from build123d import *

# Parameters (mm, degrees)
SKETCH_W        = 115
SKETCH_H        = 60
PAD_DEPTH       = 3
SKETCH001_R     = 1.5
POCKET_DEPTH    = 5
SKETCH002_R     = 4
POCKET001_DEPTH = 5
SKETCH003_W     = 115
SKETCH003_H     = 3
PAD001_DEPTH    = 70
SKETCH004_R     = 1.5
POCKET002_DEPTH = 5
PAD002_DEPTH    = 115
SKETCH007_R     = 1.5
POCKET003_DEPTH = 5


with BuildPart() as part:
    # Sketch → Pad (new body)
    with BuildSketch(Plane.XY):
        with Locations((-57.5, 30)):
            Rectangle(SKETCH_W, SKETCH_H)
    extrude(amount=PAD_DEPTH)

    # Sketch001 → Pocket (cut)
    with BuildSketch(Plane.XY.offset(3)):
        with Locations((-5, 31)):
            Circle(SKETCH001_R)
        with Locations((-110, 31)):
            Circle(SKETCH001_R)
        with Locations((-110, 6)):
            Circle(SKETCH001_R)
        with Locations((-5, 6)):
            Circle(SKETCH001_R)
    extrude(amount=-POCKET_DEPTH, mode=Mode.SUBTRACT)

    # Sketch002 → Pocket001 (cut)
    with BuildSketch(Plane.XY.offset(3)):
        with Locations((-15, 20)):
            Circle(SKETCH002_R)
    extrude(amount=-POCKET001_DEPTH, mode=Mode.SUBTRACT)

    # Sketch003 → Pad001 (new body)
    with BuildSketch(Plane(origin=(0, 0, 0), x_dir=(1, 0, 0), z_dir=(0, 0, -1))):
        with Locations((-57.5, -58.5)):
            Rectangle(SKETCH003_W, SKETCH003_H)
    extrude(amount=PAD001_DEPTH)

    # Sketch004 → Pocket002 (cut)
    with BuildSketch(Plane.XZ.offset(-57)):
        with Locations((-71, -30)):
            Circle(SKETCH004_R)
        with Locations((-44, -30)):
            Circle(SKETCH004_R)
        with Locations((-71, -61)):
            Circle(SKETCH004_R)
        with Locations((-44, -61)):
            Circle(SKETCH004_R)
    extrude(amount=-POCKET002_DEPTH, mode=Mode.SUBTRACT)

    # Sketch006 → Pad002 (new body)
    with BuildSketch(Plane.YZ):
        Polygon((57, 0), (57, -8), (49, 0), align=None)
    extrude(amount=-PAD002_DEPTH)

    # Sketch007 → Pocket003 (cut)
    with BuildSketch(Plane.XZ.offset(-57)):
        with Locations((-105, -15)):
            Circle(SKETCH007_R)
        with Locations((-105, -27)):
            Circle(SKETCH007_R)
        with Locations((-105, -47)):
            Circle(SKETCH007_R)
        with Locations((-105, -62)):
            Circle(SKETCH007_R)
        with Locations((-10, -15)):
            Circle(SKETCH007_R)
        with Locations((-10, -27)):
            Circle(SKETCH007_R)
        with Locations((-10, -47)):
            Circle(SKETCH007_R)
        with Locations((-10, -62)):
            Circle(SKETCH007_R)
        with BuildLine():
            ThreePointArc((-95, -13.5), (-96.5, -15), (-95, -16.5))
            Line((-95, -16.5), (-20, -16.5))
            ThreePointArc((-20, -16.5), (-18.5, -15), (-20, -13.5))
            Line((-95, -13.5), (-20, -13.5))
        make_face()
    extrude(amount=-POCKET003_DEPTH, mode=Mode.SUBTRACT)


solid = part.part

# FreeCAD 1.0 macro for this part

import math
import FreeCAD as App
import Part
import Sketcher

V = App.Vector
Q = App.Units.Quantity

doc = App.newDocument("Part")
params = doc.addObject("Spreadsheet::Sheet", "Params")
for row, (alias, value) in enumerate([
    ("sketch1_width", "115 mm"),
    ("sketch1_height", "60 mm"),
    ("pad1_length", "3 mm"),
    ("sketch2_diameter", "3 mm"),
    ("pocket1_length", "5 mm"),
    ("sketch3_diameter", "8 mm"),
    ("pocket2_length", "5 mm"),
    ("sketch4_width", "115 mm"),
    ("sketch4_height", "3 mm"),
    ("pad2_length", "70 mm"),
    ("sketch5_diameter", "3 mm"),
    ("pocket3_length", "5 mm"),
    ("sketch6_width", "8 mm"),
    ("pad3_length", "115 mm"),
    ("sketch7_diameter", "3 mm"),
    ("sketch7_width", "75 mm"),
    ("pocket4_length", "5 mm"),
], start=1):
    params.set(f"A{row}", alias)
    params.set(f"B{row}", "=" + value)
    params.setAlias(f"B{row}", alias)

body = doc.addObject("PartDesign::Body", "Body")

# Sketch on XY plane
sketch1 = body.newObject("Sketcher::SketchObject", "Sketch")
sketch1.AttachmentSupport = (doc.getObject("XY_Plane"), [""])
sketch1.MapMode = "FlatFace"
sketch1.addGeometry(Part.LineSegment(V(-115, 60, 0), V(-115, 0, 0)), False)
sketch1.addGeometry(Part.LineSegment(V(-115, 0, 0), V(0, 0, 0)), False)
sketch1.addGeometry(Part.LineSegment(V(0, 0, 0), V(0, 60, 0)), False)
sketch1.addGeometry(Part.LineSegment(V(0, 60, 0), V(-115, 60, 0)), False)
sketch1.addConstraint(Sketcher.Constraint("Coincident", 0, 2, 1, 1))
sketch1.addConstraint(Sketcher.Constraint("Coincident", 1, 2, 2, 1))
sketch1.addConstraint(Sketcher.Constraint("Coincident", 2, 2, 3, 1))
sketch1.addConstraint(Sketcher.Constraint("Coincident", 3, 2, 0, 1))
sketch1.addConstraint(Sketcher.Constraint("Vertical", 0))
sketch1.addConstraint(Sketcher.Constraint("Horizontal", 1))
sketch1.addConstraint(Sketcher.Constraint("Vertical", 2))
sketch1.addConstraint(Sketcher.Constraint("Horizontal", 3))
sketch1.addConstraint(Sketcher.Constraint("Coincident", 1, 2, -1, 1))
sketch1.addConstraint(Sketcher.Constraint("DistanceX", 1, 1, 1, 2, Q("115 mm")))
sketch1.addConstraint(Sketcher.Constraint("DistanceY", 0, 2, 0, 1, Q("60 mm")))
sketch1.setExpression("Constraints[9]", "Params.sketch1_width")
sketch1.setExpression("Constraints[10]", "Params.sketch1_height")
pad1 = body.newObject("PartDesign::Pad", "Pad")
pad1.Profile = sketch1
pad1.setExpression("Length", "Params.pad1_length")

# Sketch on XY plane
sketch2 = body.newObject("Sketcher::SketchObject", "Sketch001")
sketch2.AttachmentSupport = (doc.getObject("XY_Plane"), [""])
sketch2.MapMode = "FlatFace"
sketch2.AttachmentOffset = App.Placement(V(0, 0, 3), App.Rotation())
sketch2.addGeometry(Part.Circle(V(-5, 31, 0), V(0, 0, 1), 1.5), False)
sketch2.addGeometry(Part.Circle(V(-110, 31, 0), V(0, 0, 1), 1.5), False)
sketch2.addGeometry(Part.Circle(V(-110, 6, 0), V(0, 0, 1), 1.5), False)
sketch2.addGeometry(Part.Circle(V(-5, 6, 0), V(0, 0, 1), 1.5), False)
sketch2.addConstraint(Sketcher.Constraint("Equal", 0, 1))
sketch2.addConstraint(Sketcher.Constraint("Equal", 1, 2))
sketch2.addConstraint(Sketcher.Constraint("Equal", 2, 3))
sketch2.addConstraint(Sketcher.Constraint("Horizontal", 0, 3, 1, 3))
sketch2.addConstraint(Sketcher.Constraint("Horizontal", 2, 3, 3, 3))
sketch2.addConstraint(Sketcher.Constraint("Vertical", 1, 3, 2, 3))
sketch2.addConstraint(Sketcher.Constraint("Vertical", 0, 3, 3, 3))
sketch2.addConstraint(Sketcher.Constraint("Diameter", 0, Q("3 mm")))
sketch2.addConstraint(Sketcher.Constraint("DistanceX", 0, 3, -1, 1, Q("5 mm")))
sketch2.addConstraint(Sketcher.Constraint("DistanceY", -1, 1, 0, 3, Q("31 mm")))
sketch2.addConstraint(Sketcher.Constraint("DistanceX", 1, 3, -1, 1, Q("110 mm")))
sketch2.addConstraint(Sketcher.Constraint("DistanceY", -1, 1, 2, 3, Q("6 mm")))
sketch2.setExpression("Constraints[7]", "Params.sketch2_diameter")
pocket1 = body.newObject("PartDesign::Pocket", "Pocket")
pocket1.Profile = sketch2
pocket1.setExpression("Length", "Params.pocket1_length")

# Sketch on XY plane
sketch3 = body.newObject("Sketcher::SketchObject", "Sketch002")
sketch3.AttachmentSupport = (doc.getObject("XY_Plane"), [""])
sketch3.MapMode = "FlatFace"
sketch3.AttachmentOffset = App.Placement(V(0, 0, 3), App.Rotation())
sketch3.addGeometry(Part.Circle(V(-15, 20, 0), V(0, 0, 1), 4), False)
sketch3.addConstraint(Sketcher.Constraint("Diameter", 0, Q("8 mm")))
sketch3.addConstraint(Sketcher.Constraint("DistanceX", 0, 3, -1, 1, Q("15 mm")))
sketch3.addConstraint(Sketcher.Constraint("DistanceY", -1, 1, 0, 3, Q("20 mm")))
sketch3.setExpression("Constraints[0]", "Params.sketch3_diameter")
pocket2 = body.newObject("PartDesign::Pocket", "Pocket001")
pocket2.Profile = sketch3
pocket2.setExpression("Length", "Params.pocket2_length")

# Sketch on XY plane
sketch4 = body.newObject("Sketcher::SketchObject", "Sketch003")
sketch4.AttachmentSupport = (doc.getObject("XY_Plane"), [""])
sketch4.MapMode = "FlatFace"
sketch4.addGeometry(Part.LineSegment(V(-115, 57, 0), V(-115, 60, 0)), False)
sketch4.addGeometry(Part.LineSegment(V(-115, 60, 0), V(0, 60, 0)), False)
sketch4.addGeometry(Part.LineSegment(V(0, 60, 0), V(0, 57, 0)), False)
sketch4.addGeometry(Part.LineSegment(V(0, 57, 0), V(-115, 57, 0)), False)
sketch4.addConstraint(Sketcher.Constraint("Coincident", 0, 2, 1, 1))
sketch4.addConstraint(Sketcher.Constraint("Coincident", 1, 2, 2, 1))
sketch4.addConstraint(Sketcher.Constraint("Coincident", 2, 2, 3, 1))
sketch4.addConstraint(Sketcher.Constraint("Coincident", 3, 2, 0, 1))
sketch4.addConstraint(Sketcher.Constraint("Vertical", 0))
sketch4.addConstraint(Sketcher.Constraint("Horizontal", 1))
sketch4.addConstraint(Sketcher.Constraint("Vertical", 2))
sketch4.addConstraint(Sketcher.Constraint("Horizontal", 3))
sketch4.addConstraint(Sketcher.Constraint("PointOnObject", 1, 2, -2))
sketch4.addConstraint(Sketcher.Constraint("DistanceX", 1, 1, 1, 2, Q("115 mm")))
sketch4.addConstraint(Sketcher.Constraint("DistanceY", 0, 1, 0, 2, Q("3 mm")))
sketch4.addConstraint(Sketcher.Constraint("DistanceY", -1, 1, 0, 2, Q("60 mm")))
sketch4.setExpression("Constraints[9]", "Params.sketch4_width")
sketch4.setExpression("Constraints[10]", "Params.sketch4_height")
pad2 = body.newObject("PartDesign::Pad", "Pad001")
pad2.Profile = sketch4
pad2.setExpression("Length", "Params.pad2_length")
pad2.Reversed = True

# Sketch on XZ plane
sketch5 = body.newObject("Sketcher::SketchObject", "Sketch004")
sketch5.AttachmentSupport = (doc.getObject("XZ_Plane"), [""])
sketch5.MapMode = "FlatFace"
sketch5.AttachmentOffset = App.Placement(V(0, 0, -57), App.Rotation())
sketch5.addGeometry(Part.Circle(V(-71, -30, 0), V(0, 0, 1), 1.5), False)
sketch5.addGeometry(Part.Circle(V(-44, -30, 0), V(0, 0, 1), 1.5), False)
sketch5.addGeometry(Part.Circle(V(-71, -61, 0), V(0, 0, 1), 1.5), False)
sketch5.addGeometry(Part.Circle(V(-44, -61, 0), V(0, 0, 1), 1.5), False)
sketch5.addConstraint(Sketcher.Constraint("Equal", 0, 1))
sketch5.addConstraint(Sketcher.Constraint("Equal", 1, 2))
sketch5.addConstraint(Sketcher.Constraint("Equal", 2, 3))
sketch5.addConstraint(Sketcher.Constraint("Horizontal", 0, 3, 1, 3))
sketch5.addConstraint(Sketcher.Constraint("Horizontal", 2, 3, 3, 3))
sketch5.addConstraint(Sketcher.Constraint("Vertical", 0, 3, 2, 3))
sketch5.addConstraint(Sketcher.Constraint("Vertical", 1, 3, 3, 3))
sketch5.addConstraint(Sketcher.Constraint("Diameter", 0, Q("3 mm")))
sketch5.addConstraint(Sketcher.Constraint("DistanceX", 0, 3, -1, 1, Q("71 mm")))
sketch5.addConstraint(Sketcher.Constraint("DistanceY", 0, 3, -1, 1, Q("30 mm")))
sketch5.addConstraint(Sketcher.Constraint("DistanceX", 1, 3, -1, 1, Q("44 mm")))
sketch5.addConstraint(Sketcher.Constraint("DistanceY", 2, 3, -1, 1, Q("61 mm")))
sketch5.setExpression("Constraints[7]", "Params.sketch5_diameter")
pocket3 = body.newObject("PartDesign::Pocket", "Pocket002")
pocket3.Profile = sketch5
pocket3.setExpression("Length", "Params.pocket3_length")

# Sketch on YZ plane
sketch6 = body.newObject("Sketcher::SketchObject", "Sketch005")
sketch6.AttachmentSupport = (doc.getObject("YZ_Plane"), [""])
sketch6.MapMode = "FlatFace"
sketch6.addGeometry(Part.LineSegment(V(57, -8, 0), V(57, 0, 0)), False)
sketch6.addGeometry(Part.LineSegment(V(57, 0, 0), V(49, 0, 0)), False)
sketch6.addGeometry(Part.LineSegment(V(49, 0, 0), V(57, -8, 0)), False)
sketch6.addConstraint(Sketcher.Constraint("Coincident", 0, 2, 1, 1))
sketch6.addConstraint(Sketcher.Constraint("Coincident", 1, 2, 2, 1))
sketch6.addConstraint(Sketcher.Constraint("Coincident", 2, 2, 0, 1))
sketch6.addConstraint(Sketcher.Constraint("Vertical", 0))
sketch6.addConstraint(Sketcher.Constraint("Horizontal", 1))
sketch6.addConstraint(Sketcher.Constraint("PointOnObject", 0, 2, -1))
sketch6.addConstraint(Sketcher.Constraint("Equal", 1, 0))
sketch6.addConstraint(Sketcher.Constraint("DistanceX", 1, 2, 1, 1, Q("8 mm")))
sketch6.addConstraint(Sketcher.Constraint("DistanceX", -1, 1, 0, 2, Q("57 mm")))
sketch6.setExpression("Constraints[7]", "Params.sketch6_width")
pad3 = body.newObject("PartDesign::Pad", "Pad002")
pad3.Profile = sketch6
pad3.setExpression("Length", "Params.pad3_length")
pad3.Reversed = True

# Sketch on XZ plane
sketch7 = body.newObject("Sketcher::SketchObject", "Sketch006")
sketch7.AttachmentSupport = (doc.getObject("XZ_Plane"), [""])
sketch7.MapMode = "FlatFace"
sketch7.AttachmentOffset = App.Placement(V(0, 0, -57), App.Rotation())
sketch7.addGeometry(Part.Circle(V(-105, -15, 0), V(0, 0, 1), 1.5), False)
sketch7.addGeometry(Part.Circle(V(-105, -27, 0), V(0, 0, 1), 1.5), False)
sketch7.addGeometry(Part.Circle(V(-105, -47, 0), V(0, 0, 1), 1.5), False)
sketch7.addGeometry(Part.Circle(V(-105, -62, 0), V(0, 0, 1), 1.5), False)
sketch7.addGeometry(Part.Circle(V(-10, -15, 0), V(0, 0, 1), 1.5), False)
sketch7.addGeometry(Part.Circle(V(-10, -27, 0), V(0, 0, 1), 1.5), False)
sketch7.addGeometry(Part.Circle(V(-10, -47, 0), V(0, 0, 1), 1.5), False)
sketch7.addGeometry(Part.Circle(V(-10, -62, 0), V(0, 0, 1), 1.5), False)
sketch7.addGeometry(Part.ArcOfCircle(Part.Circle(V(-95, -15, 0), V(0, 0, 1), 1.5), math.radians(90), math.radians(270)), False)
sketch7.addGeometry(Part.LineSegment(V(-95, -16.5, 0), V(-20, -16.5, 0)), False)
sketch7.addGeometry(Part.ArcOfCircle(Part.Circle(V(-20, -15, 0), V(0, 0, 1), 1.5), math.radians(-90), math.radians(90)), False)
sketch7.addGeometry(Part.LineSegment(V(-20, -13.5, 0), V(-95, -13.5, 0)), False)
sketch7.addConstraint(Sketcher.Constraint("Tangent", 8, 2, 9, 1))
sketch7.addConstraint(Sketcher.Constraint("Tangent", 9, 2, 10, 1))
sketch7.addConstraint(Sketcher.Constraint("Tangent", 10, 2, 11, 1))
sketch7.addConstraint(Sketcher.Constraint("Tangent", 11, 2, 8, 1))
sketch7.addConstraint(Sketcher.Constraint("Horizontal", 9))
sketch7.addConstraint(Sketcher.Constraint("Horizontal", 11))
sketch7.addConstraint(Sketcher.Constraint("Equal", 0, 1))
sketch7.addConstraint(Sketcher.Constraint("Equal", 1, 2))
sketch7.addConstraint(Sketcher.Constraint("Equal", 2, 3))
sketch7.addConstraint(Sketcher.Constraint("Equal", 3, 4))
sketch7.addConstraint(Sketcher.Constraint("Equal", 4, 5))
sketch7.addConstraint(Sketcher.Constraint("Equal", 5, 6))
sketch7.addConstraint(Sketcher.Constraint("Equal", 6, 7))
sketch7.addConstraint(Sketcher.Constraint("Equal", 7, 8))
sketch7.addConstraint(Sketcher.Constraint("Horizontal", 0, 3, 4, 3))
sketch7.addConstraint(Sketcher.Constraint("Horizontal", 1, 3, 5, 3))
sketch7.addConstraint(Sketcher.Constraint("Horizontal", 2, 3, 6, 3))
sketch7.addConstraint(Sketcher.Constraint("Horizontal", 3, 3, 7, 3))
sketch7.addConstraint(Sketcher.Constraint("Horizontal", 4, 3, 8, 3))
sketch7.addConstraint(Sketcher.Constraint("Vertical", 0, 3, 1, 3))
sketch7.addConstraint(Sketcher.Constraint("Vertical", 1, 3, 2, 3))
sketch7.addConstraint(Sketcher.Constraint("Vertical", 2, 3, 3, 3))
sketch7.addConstraint(Sketcher.Constraint("Vertical", 4, 3, 5, 3))
sketch7.addConstraint(Sketcher.Constraint("Vertical", 5, 3, 6, 3))
sketch7.addConstraint(Sketcher.Constraint("Vertical", 6, 3, 7, 3))
sketch7.addConstraint(Sketcher.Constraint("Diameter", 0, Q("3 mm")))
sketch7.addConstraint(Sketcher.Constraint("DistanceX", 9, 1, 9, 2, Q("75 mm")))
sketch7.addConstraint(Sketcher.Constraint("DistanceX", 0, 3, -1, 1, Q("105 mm")))
sketch7.addConstraint(Sketcher.Constraint("DistanceY", 0, 3, -1, 1, Q("15 mm")))
sketch7.addConstraint(Sketcher.Constraint("DistanceY", 1, 3, -1, 1, Q("27 mm")))
sketch7.addConstraint(Sketcher.Constraint("DistanceY", 2, 3, -1, 1, Q("47 mm")))
sketch7.addConstraint(Sketcher.Constraint("DistanceY", 3, 3, -1, 1, Q("62 mm")))
sketch7.addConstraint(Sketcher.Constraint("DistanceX", 4, 3, -1, 1, Q("10 mm")))
sketch7.addConstraint(Sketcher.Constraint("DistanceX", 8, 3, -1, 1, Q("95 mm")))
sketch7.setExpression("Constraints[25]", "Params.sketch7_diameter")
sketch7.setExpression("Constraints[26]", "Params.sketch7_width")
pocket4 = body.newObject("PartDesign::Pocket", "Pocket003")
pocket4.Profile = sketch7
pocket4.setExpression("Length", "Params.pocket4_length")

doc.recompute()
